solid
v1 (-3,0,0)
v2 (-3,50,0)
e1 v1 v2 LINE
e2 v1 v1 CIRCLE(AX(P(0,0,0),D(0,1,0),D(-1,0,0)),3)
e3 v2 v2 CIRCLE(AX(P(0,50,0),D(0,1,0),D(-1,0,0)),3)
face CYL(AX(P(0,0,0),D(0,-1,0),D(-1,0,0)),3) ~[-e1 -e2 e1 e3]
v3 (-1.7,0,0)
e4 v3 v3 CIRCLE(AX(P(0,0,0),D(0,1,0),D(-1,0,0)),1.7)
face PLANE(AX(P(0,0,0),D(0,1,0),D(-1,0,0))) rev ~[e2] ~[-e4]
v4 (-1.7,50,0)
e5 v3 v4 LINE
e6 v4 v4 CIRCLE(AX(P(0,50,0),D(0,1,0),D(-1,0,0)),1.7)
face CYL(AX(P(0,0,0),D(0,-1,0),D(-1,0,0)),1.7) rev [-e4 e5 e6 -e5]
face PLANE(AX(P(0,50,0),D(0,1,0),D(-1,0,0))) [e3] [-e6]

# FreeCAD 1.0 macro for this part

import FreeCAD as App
import Part
import Sketcher
from FreeCAD import Vector
Q = App.Units.Quantity

doc = App.newDocument("Part")
body = doc.addObject("PartDesign::Body", "Body")

# Sketch on XZ plane
sketch1 = body.newObject("Sketcher::SketchObject", "Sketch")
sketch1.AttachmentSupport = (doc.getObject("XZ_Plane"), [""])
sketch1.MapMode = "FlatFace"
sketch1.addGeometry([
    Part.Circle(Vector(0, 0, 0), Vector(0, 0, 1), 3),
    Part.Circle(Vector(0, 0, 0), Vector(0, 0, 1), 1.7),
], False)
sketch1.addConstraint([
    Sketcher.Constraint("Coincident", 0, 3, -1, 1),
    Sketcher.Constraint("Coincident", 1, 3, -1, 1),
    Sketcher.Constraint("Diameter", 0, Q("6 mm")),
    Sketcher.Constraint("Diameter", 1, Q("3.4 mm")),
])
pad1 = body.newObject("PartDesign::Pad", "Pad")
pad1.Profile = sketch1
pad1.Length = 50
pad1.Reversed = True

doc.recompute()
